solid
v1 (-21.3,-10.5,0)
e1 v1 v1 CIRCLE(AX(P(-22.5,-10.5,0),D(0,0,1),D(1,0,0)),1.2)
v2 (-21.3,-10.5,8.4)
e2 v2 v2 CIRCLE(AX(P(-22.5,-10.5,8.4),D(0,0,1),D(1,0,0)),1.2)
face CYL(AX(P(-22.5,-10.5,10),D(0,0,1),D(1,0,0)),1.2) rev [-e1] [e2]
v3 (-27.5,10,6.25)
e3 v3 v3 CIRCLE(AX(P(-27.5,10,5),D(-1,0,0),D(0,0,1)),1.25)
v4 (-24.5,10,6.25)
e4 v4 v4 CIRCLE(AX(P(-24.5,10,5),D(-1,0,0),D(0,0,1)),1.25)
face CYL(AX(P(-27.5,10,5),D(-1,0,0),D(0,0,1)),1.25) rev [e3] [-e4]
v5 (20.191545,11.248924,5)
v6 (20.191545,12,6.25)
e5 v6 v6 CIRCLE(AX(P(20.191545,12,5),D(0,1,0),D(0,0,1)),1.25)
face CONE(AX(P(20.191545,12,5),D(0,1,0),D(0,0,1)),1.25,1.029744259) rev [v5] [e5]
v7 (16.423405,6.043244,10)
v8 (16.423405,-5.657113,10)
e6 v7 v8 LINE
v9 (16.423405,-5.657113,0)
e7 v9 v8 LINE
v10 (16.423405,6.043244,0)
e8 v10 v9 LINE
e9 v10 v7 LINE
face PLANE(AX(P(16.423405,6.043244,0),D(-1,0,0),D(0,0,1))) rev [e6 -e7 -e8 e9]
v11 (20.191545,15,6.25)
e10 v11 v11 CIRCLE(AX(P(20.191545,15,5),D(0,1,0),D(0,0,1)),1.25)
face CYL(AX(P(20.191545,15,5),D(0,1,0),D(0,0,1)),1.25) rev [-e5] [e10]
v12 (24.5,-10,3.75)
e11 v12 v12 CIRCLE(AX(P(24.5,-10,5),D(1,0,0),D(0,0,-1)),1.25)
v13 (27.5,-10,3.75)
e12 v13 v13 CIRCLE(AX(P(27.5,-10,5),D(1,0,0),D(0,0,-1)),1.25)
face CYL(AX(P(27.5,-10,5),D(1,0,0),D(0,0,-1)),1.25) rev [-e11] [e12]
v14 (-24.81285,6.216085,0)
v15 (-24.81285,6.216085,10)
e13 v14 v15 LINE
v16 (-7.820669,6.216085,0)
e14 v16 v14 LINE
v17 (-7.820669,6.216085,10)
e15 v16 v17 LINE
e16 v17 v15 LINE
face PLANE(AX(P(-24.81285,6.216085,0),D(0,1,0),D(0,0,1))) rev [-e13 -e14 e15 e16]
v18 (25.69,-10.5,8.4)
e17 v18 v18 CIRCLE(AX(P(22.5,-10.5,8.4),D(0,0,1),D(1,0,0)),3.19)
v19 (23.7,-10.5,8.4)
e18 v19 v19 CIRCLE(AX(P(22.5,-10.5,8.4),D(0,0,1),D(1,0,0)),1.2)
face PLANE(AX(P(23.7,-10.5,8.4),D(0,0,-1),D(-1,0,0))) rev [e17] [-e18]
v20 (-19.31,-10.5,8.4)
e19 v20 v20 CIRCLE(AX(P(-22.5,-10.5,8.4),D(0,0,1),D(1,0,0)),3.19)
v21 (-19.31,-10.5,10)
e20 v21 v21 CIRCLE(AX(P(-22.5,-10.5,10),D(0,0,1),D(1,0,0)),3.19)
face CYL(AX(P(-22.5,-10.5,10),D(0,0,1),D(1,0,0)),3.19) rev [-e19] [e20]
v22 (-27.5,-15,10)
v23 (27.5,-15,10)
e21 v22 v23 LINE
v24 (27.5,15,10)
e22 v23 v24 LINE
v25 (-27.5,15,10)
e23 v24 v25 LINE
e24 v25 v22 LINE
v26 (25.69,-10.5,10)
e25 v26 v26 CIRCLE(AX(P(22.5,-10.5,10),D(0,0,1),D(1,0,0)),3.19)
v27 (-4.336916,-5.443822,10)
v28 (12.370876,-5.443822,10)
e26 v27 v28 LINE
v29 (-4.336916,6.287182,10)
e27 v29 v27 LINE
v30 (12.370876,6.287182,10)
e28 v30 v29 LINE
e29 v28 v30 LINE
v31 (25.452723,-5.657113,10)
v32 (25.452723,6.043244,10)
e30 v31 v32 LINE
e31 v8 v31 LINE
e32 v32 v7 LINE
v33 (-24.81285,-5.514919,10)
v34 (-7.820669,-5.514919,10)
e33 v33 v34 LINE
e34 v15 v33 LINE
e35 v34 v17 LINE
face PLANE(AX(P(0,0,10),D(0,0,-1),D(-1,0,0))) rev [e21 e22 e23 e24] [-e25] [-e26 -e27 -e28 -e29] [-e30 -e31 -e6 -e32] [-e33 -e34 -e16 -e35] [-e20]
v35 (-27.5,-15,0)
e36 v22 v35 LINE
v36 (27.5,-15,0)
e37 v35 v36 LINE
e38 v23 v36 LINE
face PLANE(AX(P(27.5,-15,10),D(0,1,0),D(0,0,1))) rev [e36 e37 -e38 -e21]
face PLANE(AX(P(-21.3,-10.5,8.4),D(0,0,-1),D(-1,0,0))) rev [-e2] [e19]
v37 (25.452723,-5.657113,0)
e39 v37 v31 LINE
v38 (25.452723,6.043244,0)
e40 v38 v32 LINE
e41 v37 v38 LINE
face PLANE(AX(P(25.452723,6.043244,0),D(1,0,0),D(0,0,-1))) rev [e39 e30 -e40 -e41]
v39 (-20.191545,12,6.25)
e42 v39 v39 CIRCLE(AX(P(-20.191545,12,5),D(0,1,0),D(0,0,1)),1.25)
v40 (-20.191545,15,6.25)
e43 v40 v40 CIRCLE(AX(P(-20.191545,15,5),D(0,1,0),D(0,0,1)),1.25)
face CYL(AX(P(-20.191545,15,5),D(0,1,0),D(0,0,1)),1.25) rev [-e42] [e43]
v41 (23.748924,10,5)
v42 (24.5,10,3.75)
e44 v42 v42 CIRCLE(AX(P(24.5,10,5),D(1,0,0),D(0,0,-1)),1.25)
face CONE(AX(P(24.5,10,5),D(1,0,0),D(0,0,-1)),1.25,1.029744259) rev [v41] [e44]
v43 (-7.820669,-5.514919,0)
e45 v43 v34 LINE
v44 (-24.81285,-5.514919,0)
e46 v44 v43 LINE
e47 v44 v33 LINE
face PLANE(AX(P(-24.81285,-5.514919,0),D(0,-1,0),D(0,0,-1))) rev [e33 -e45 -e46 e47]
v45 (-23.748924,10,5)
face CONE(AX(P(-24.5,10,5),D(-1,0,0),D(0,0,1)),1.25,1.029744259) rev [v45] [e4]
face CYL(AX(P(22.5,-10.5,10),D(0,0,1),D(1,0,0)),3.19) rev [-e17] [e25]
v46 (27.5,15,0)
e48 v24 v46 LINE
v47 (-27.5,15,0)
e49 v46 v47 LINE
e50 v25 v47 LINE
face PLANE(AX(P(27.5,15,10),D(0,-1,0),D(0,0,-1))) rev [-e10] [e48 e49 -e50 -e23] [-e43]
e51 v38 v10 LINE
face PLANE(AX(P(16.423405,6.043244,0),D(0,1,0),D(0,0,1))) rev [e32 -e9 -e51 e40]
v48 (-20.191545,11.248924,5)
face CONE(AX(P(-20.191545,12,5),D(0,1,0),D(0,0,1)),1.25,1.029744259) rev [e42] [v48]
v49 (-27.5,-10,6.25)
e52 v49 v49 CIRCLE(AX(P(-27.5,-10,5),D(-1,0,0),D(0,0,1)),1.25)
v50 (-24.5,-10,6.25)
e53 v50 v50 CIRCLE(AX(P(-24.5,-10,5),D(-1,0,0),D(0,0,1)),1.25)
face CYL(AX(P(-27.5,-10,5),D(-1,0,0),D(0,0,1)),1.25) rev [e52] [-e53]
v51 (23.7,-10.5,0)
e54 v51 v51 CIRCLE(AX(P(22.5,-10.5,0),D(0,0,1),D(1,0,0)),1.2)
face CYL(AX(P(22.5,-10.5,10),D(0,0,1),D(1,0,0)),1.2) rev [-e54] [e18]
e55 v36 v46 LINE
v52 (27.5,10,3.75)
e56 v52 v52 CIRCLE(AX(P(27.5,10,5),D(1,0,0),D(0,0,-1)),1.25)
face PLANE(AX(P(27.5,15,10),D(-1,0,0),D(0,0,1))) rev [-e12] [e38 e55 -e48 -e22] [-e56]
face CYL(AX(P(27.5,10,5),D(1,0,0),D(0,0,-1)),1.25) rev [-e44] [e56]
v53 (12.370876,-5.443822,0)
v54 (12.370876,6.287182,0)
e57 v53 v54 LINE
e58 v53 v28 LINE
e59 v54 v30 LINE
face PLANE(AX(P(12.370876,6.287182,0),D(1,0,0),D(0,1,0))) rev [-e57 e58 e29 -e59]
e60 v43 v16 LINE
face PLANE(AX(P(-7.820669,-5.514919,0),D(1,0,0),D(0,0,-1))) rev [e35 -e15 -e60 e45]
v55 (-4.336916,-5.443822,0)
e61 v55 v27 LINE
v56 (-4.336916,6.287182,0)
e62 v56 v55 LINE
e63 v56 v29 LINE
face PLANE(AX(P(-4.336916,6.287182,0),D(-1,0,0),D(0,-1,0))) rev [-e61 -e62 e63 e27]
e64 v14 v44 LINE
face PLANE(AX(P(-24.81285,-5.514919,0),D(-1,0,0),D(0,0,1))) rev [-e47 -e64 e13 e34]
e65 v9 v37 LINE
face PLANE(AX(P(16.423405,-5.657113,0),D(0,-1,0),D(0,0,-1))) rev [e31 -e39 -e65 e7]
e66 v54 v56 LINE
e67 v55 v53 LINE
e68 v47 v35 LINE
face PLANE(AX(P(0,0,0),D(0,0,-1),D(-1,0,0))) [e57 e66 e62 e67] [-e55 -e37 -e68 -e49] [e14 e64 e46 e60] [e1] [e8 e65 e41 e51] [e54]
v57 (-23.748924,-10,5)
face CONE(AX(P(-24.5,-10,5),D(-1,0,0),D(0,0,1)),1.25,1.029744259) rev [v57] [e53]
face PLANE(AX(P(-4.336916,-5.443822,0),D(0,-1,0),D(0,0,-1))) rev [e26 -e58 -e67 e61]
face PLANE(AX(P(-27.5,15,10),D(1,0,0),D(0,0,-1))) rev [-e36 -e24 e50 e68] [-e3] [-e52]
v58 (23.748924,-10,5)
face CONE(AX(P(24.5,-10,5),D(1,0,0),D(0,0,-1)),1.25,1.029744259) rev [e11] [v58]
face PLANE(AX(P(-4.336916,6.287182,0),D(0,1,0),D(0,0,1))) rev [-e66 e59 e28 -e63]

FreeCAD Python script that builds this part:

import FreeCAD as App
import Part
import Sketcher

V = App.Vector
Q = App.Units.Quantity

doc = App.newDocument("Part")
body = doc.addObject("PartDesign::Body", "Body")

sketch1 = doc.addObject("Sketcher::SketchObject", "Sketch")
body.addObject(sketch1)
sketch1.AttachmentSupport = (doc.XY_Plane, [""])
sketch1.MapMode = "FlatFace"
sketch1.addGeometry(Part.LineSegment(V(-28, 15, 0), V(-28, -15, 0)), False)
sketch1.addGeometry(Part.LineSegment(V(-28, -15, 0), V(28, -15, 0)), False)
sketch1.addGeometry(Part.LineSegment(V(28, -15, 0), V(28, 15, 0)), False)
sketch1.addGeometry(Part.LineSegment(V(28, 15, 0), V(-28, 15, 0)), False)
sketch1.addConstraint(Sketcher.Constraint("Coincident", 0, 2, 1, 1))
sketch1.addConstraint(Sketcher.Constraint("Coincident", 1, 2, 2, 1))
sketch1.addConstraint(Sketcher.Constraint("Coincident", 2, 2, 3, 1))
sketch1.addConstraint(Sketcher.Constraint("Coincident", 3, 2, 0, 1))
sketch1.addConstraint(Sketcher.Constraint("Vertical", 0))
sketch1.addConstraint(Sketcher.Constraint("Horizontal", 1))
sketch1.addConstraint(Sketcher.Constraint("Vertical", 2))
sketch1.addConstraint(Sketcher.Constraint("Horizontal", 3))
sketch1.addConstraint(Sketcher.Constraint("Symmetric", 0, 2, 2, 2, -1, 1))
sketch1.addConstraint(Sketcher.Constraint("DistanceX", 1, 1, 1, 2, 55.0))
sketch1.addConstraint(Sketcher.Constraint("DistanceY", 0, 2, 0, 1, 30.0))
pad1 = doc.addObject("PartDesign::Pad", "Pad")
body.addObject(pad1)
pad1.Profile = sketch1
pad1.Length = 10

sketch2 = doc.addObject("Sketcher::SketchObject", "Sketch001")
body.addObject(sketch2)
sketch2.AttachmentSupport = (doc.XY_Plane, [""])
sketch2.MapMode = "FlatFace"
sketch2.AttachmentOffset = App.Placement(V(0, 0, 10), App.Rotation())
sketch2.addGeometry(Part.LineSegment(V(-25, 6, 0), V(-25, -6, 0)), False)
sketch2.addGeometry(Part.LineSegment(V(-25, -6, 0), V(-8, -6, 0)), False)
sketch2.addGeometry(Part.LineSegment(V(-8, -6, 0), V(-8, 6, 0)), False)
sketch2.addGeometry(Part.LineSegment(V(-8, 6, 0), V(-25, 6, 0)), False)
sketch2.addGeometry(Part.LineSegment(V(-4, 6, 0), V(-4, -5, 0)), False)
sketch2.addGeometry(Part.LineSegment(V(-4, -5, 0), V(12, -5, 0)), False)
sketch2.addGeometry(Part.LineSegment(V(12, -5, 0), V(12, 6, 0)), False)
sketch2.addGeometry(Part.LineSegment(V(12, 6, 0), V(-4, 6, 0)), False)
sketch2.addGeometry(Part.LineSegment(V(16, 6, 0), V(16, -6, 0)), False)
sketch2.addGeometry(Part.LineSegment(V(16, -6, 0), V(25, -6, 0)), False)
sketch2.addGeometry(Part.LineSegment(V(25, -6, 0), V(25, 6, 0)), False)
sketch2.addGeometry(Part.LineSegment(V(25, 6, 0), V(16, 6, 0)), False)
sketch2.addConstraint(Sketcher.Constraint("Coincident", 0, 2, 1, 1))
sketch2.addConstraint(Sketcher.Constraint("Coincident", 1, 2, 2, 1))
sketch2.addConstraint(Sketcher.Constraint("Coincident", 2, 2, 3, 1))
sketch2.addConstraint(Sketcher.Constraint("Coincident", 3, 2, 0, 1))
sketch2.addConstraint(Sketcher.Constraint("Coincident", 4, 2, 5, 1))
sketch2.addConstraint(Sketcher.Constraint("Coincident", 5, 2, 6, 1))
sketch2.addConstraint(Sketcher.Constraint("Coincident", 6, 2, 7, 1))
sketch2.addConstraint(Sketcher.Constraint("Coincident", 7, 2, 4, 1))
sketch2.addConstraint(Sketcher.Constraint("Coincident", 8, 2, 9, 1))
sketch2.addConstraint(Sketcher.Constraint("Coincident", 9, 2, 10, 1))
sketch2.addConstraint(Sketcher.Constraint("Coincident", 10, 2, 11, 1))
sketch2.addConstraint(Sketcher.Constraint("Coincident", 11, 2, 8, 1))
sketch2.addConstraint(Sketcher.Constraint("Vertical", 0))
sketch2.addConstraint(Sketcher.Constraint("Horizontal", 1))
sketch2.addConstraint(Sketcher.Constraint("Vertical", 2))
sketch2.addConstraint(Sketcher.Constraint("Horizontal", 3))
sketch2.addConstraint(Sketcher.Constraint("Vertical", 4))
sketch2.addConstraint(Sketcher.Constraint("Horizontal", 5))
sketch2.addConstraint(Sketcher.Constraint("Vertical", 6))
sketch2.addConstraint(Sketcher.Constraint("Horizontal", 7))
sketch2.addConstraint(Sketcher.Constraint("Vertical", 8))
sketch2.addConstraint(Sketcher.Constraint("Horizontal", 9))
sketch2.addConstraint(Sketcher.Constraint("Vertical", 10))
sketch2.addConstraint(Sketcher.Constraint("Horizontal", 11))
sketch2.addConstraint(Sketcher.Constraint("Equal", 2, 4))
sketch2.addConstraint(Sketcher.Constraint("DistanceX", 1, 1, 1, 2, 16.992181))
sketch2.addConstraint(Sketcher.Constraint("DistanceY", 1, 2, 6, 2, 11.802101))
sketch2.addConstraint(Sketcher.Constraint("DistanceX", 5, 1, 5, 2, 16.707793))
sketch2.addConstraint(Sketcher.Constraint("DistanceX", 9, 1, 9, 2, 9.029318))
sketch2.addConstraint(Sketcher.Constraint("DistanceY", 0, 2, 0, 1, 11.731004))
sketch2.addConstraint(Sketcher.Constraint("DistanceY", 8, 2, 8, 1, 11.700357))
sketch2.addConstraint(Sketcher.Constraint("DistanceX", 0, 2, -1, 1, 24.81285))
sketch2.addConstraint(Sketcher.Constraint("DistanceY", 0, 2, -1, 1, 5.514919))
sketch2.addConstraint(Sketcher.Constraint("DistanceX", 5, 2, 8, 2, 4.052528))
sketch2.addConstraint(Sketcher.Constraint("DistanceY", 8, 2, 5, 2, 0.213291))
sketch2.addConstraint(Sketcher.Constraint("DistanceX", 4, 2, -1, 1, 4.336916))
pocket1 = doc.addObject("PartDesign::Pocket", "Pocket")
body.addObject(pocket1)
pocket1.Profile = sketch2
pocket1.Type = "ThroughAll"

sketch3 = doc.addObject("Sketcher::SketchObject", "Sketch002")
body.addObject(sketch3)
sketch3.AttachmentSupport = (doc.XY_Plane, [""])
sketch3.MapMode = "FlatFace"
sketch3.AttachmentOffset = App.Placement(V(0, 0, 10), App.Rotation())
sketch3.addGeometry(Part.Circle(V(-22.5, -10.5, 0), V(0, 0, 1), 1.2), False)
sketch3.addGeometry(Part.Circle(V(22.5, -10.5, 0), V(0, 0, 1), 1.2), False)
sketch3.addConstraint(Sketcher.Constraint("Equal", 0, 1))
sketch3.addConstraint(Sketcher.Constraint("Symmetric", 0, 3, 1, 3, -2))
sketch3.addConstraint(Sketcher.Constraint("Diameter", 0, 2.4))
sketch3.addConstraint(Sketcher.Constraint("DistanceX", 0, 3, 1, 3, 45.0))
sketch3.addConstraint(Sketcher.Constraint("DistanceY", 0, 3, -1, 1, 10.5))
doc.recompute()
hole = doc.addObject("PartDesign::Hole", "Hole")
body.addObject(hole)
hole.Profile = sketch3
hole.ThreadType = "None"
hole.Diameter = 2.4
hole.DepthType = "ThroughAll"
hole.HoleCutType = "Counterbore"
hole.HoleCutDiameter = 6.38
hole.HoleCutDepth = 1.6

sketch4 = doc.addObject("Sketcher::SketchObject", "Sketch003")
body.addObject(sketch4)
sketch4.AttachmentSupport = (doc.XZ_Plane, [""])
sketch4.MapMode = "FlatFace"
sketch4.AttachmentOffset = App.Placement(V(0, 0, -15), App.Rotation())
sketch4.addGeometry(Part.Circle(V(-20.2, 5, 0), V(0, 0, 1), 1.2), False)
sketch4.addGeometry(Part.Circle(V(20.2, 5, 0), V(0, 0, 1), 1.2), False)
sketch4.addConstraint(Sketcher.Constraint("Equal", 0, 1))
sketch4.addConstraint(Sketcher.Constraint("Symmetric", 0, 3, 1, 3, -2))
sketch4.addConstraint(Sketcher.Constraint("Diameter", 0, 2.5))
sketch4.addConstraint(Sketcher.Constraint("DistanceY", -1, 1, 0, 3, 5.0))
sketch4.addConstraint(Sketcher.Constraint("DistanceX", 0, 3, 1, 3, 40.383091))
doc.recompute()
hole2 = doc.addObject("PartDesign::Hole", "Hole001")
body.addObject(hole2)
hole2.Profile = sketch4
hole2.ThreadType = "None"
hole2.Diameter = 2.5
hole2.DepthType = "Dimension"
hole2.Depth = 3
hole2.DrillPoint = "Angled"
hole2.DrillPointAngle = 118
hole2.Reversed = True

sketch5 = doc.addObject("Sketcher::SketchObject", "Sketch004")
body.addObject(sketch5)
sketch5.AttachmentSupport = (doc.XZ_Plane, [""])
sketch5.MapMode = "FlatFace"
sketch5.AttachmentOffset = App.Placement(V(0, 0, 10), App.Rotation())
sketch5.addGeometry(Part.LineSegment(V(-23.7, 5, 0), V(-27.5, 5, 0)), False)
sketch5.addGeometry(Part.LineSegment(V(-27.5, 5, 0), V(-27.5, 6.2, 0)), False)
sketch5.addGeometry(Part.LineSegment(V(-27.5, 6.2, 0), V(-24.5, 6.2, 0)), False)
sketch5.addGeometry(Part.LineSegment(V(-24.5, 6.2, 0), V(-23.7, 5, 0)), False)
sketch5.addGeometry(Part.LineSegment(V(-27.5, 5, 0), V(-23.7, 5, 0)), True)
sketch5.addConstraint(Sketcher.Constraint("Coincident", 0, 2, 1, 1))
sketch5.addConstraint(Sketcher.Constraint("Coincident", 1, 2, 2, 1))
sketch5.addConstraint(Sketcher.Constraint("Coincident", 2, 2, 3, 1))
sketch5.addConstraint(Sketcher.Constraint("Coincident", 3, 2, 0, 1))
sketch5.addConstraint(Sketcher.Constraint("Horizontal", 0))
sketch5.addConstraint(Sketcher.Constraint("Vertical", 1))
sketch5.addConstraint(Sketcher.Constraint("Horizontal", 2))
sketch5.addConstraint(Sketcher.Constraint("Horizontal", 4))
sketch5.addConstraint(Sketcher.Constraint("Coincident", 4, 1, 0, 2))
sketch5.addConstraint(Sketcher.Constraint("Equal", 0, 4))
sketch5.addConstraint(Sketcher.Constraint("DistanceX", 2, 1, 2, 2, 3.0))
sketch5.addConstraint(Sketcher.Constraint("Angle", 3, Q("-59 deg")))
sketch5.addConstraint(Sketcher.Constraint("DistanceY", -1, 1, 0, 2, 5.0))
sketch5.addConstraint(Sketcher.Constraint("DistanceY", 1, 1, 1, 2, 1.25))
sketch5.addConstraint(Sketcher.Constraint("DistanceX", 0, 2, -1, 1, 27.5))
groove = doc.addObject("PartDesign::Groove", "Groove")
body.addObject(groove)
groove.Profile = sketch5
groove.ReferenceAxis = (sketch5, ["Axis0"])
groove.Angle = 360

sketch6 = doc.addObject("Sketcher::SketchObject", "Sketch005")
body.addObject(sketch6)
sketch6.AttachmentSupport = (doc.XZ_Plane, [""])
sketch6.MapMode = "FlatFace"
sketch6.AttachmentOffset = App.Placement(V(0, 0, 10), App.Rotation())
sketch6.addGeometry(Part.LineSegment(V(23.7, 5, 0), V(27.5, 5, 0)), False)
sketch6.addGeometry(Part.LineSegment(V(27.5, 5, 0), V(27.5, 3.8, 0)), False)
sketch6.addGeometry(Part.LineSegment(V(27.5, 3.8, 0), V(24.5, 3.8, 0)), False)
sketch6.addGeometry(Part.LineSegment(V(24.5, 3.8, 0), V(23.7, 5, 0)), False)
sketch6.addGeometry(Part.LineSegment(V(27.5, 5, 0), V(23.7, 5, 0)), True)
sketch6.addConstraint(Sketcher.Constraint("Coincident", 0, 2, 1, 1))
sketch6.addConstraint(Sketcher.Constraint("Coincident", 1, 2, 2, 1))
sketch6.addConstraint(Sketcher.Constraint("Coincident", 2, 2, 3, 1))
sketch6.addConstraint(Sketcher.Constraint("Coincident", 3, 2, 0, 1))
sketch6.addConstraint(Sketcher.Constraint("Horizontal", 0))
sketch6.addConstraint(Sketcher.Constraint("Vertical", 1))
sketch6.addConstraint(Sketcher.Constraint("Horizontal", 2))
sketch6.addConstraint(Sketcher.Constraint("Horizontal", 4))
sketch6.addConstraint(Sketcher.Constraint("Coincident", 4, 1, 0, 2))
sketch6.addConstraint(Sketcher.Constraint("Equal", 0, 4))
sketch6.addConstraint(Sketcher.Constraint("DistanceX", 2, 2, 2, 1, 3.0))
sketch6.addConstraint(Sketcher.Constraint("Angle", 3, Q("121 deg")))
sketch6.addConstraint(Sketcher.Constraint("DistanceY", -1, 1, 0, 2, 5.0))
sketch6.addConstraint(Sketcher.Constraint("DistanceY", 1, 2, 1, 1, 1.25))
sketch6.addConstraint(Sketcher.Constraint("DistanceX", -1, 1, 0, 2, 27.5))
groove2 = doc.addObject("PartDesign::Groove", "Groove001")
body.addObject(groove2)
groove2.Profile = sketch6
groove2.ReferenceAxis = (sketch6, ["Axis0"])
groove2.Angle = 360
doc.recompute()

mirrored = doc.addObject("PartDesign::Mirrored", "Mirrored")
body.addObject(mirrored)
mirrored.Originals = [groove2]
mirrored.MirrorPlane = (doc.XZ_Plane, [""])
body.Tip = mirrored
doc.recompute()

mirrored2 = doc.addObject("PartDesign::Mirrored", "Mirrored001")
body.addObject(mirrored2)
mirrored2.Originals = [groove]
mirrored2.MirrorPlane = (doc.XZ_Plane, [""])
body.Tip = mirrored2

doc.recompute()
